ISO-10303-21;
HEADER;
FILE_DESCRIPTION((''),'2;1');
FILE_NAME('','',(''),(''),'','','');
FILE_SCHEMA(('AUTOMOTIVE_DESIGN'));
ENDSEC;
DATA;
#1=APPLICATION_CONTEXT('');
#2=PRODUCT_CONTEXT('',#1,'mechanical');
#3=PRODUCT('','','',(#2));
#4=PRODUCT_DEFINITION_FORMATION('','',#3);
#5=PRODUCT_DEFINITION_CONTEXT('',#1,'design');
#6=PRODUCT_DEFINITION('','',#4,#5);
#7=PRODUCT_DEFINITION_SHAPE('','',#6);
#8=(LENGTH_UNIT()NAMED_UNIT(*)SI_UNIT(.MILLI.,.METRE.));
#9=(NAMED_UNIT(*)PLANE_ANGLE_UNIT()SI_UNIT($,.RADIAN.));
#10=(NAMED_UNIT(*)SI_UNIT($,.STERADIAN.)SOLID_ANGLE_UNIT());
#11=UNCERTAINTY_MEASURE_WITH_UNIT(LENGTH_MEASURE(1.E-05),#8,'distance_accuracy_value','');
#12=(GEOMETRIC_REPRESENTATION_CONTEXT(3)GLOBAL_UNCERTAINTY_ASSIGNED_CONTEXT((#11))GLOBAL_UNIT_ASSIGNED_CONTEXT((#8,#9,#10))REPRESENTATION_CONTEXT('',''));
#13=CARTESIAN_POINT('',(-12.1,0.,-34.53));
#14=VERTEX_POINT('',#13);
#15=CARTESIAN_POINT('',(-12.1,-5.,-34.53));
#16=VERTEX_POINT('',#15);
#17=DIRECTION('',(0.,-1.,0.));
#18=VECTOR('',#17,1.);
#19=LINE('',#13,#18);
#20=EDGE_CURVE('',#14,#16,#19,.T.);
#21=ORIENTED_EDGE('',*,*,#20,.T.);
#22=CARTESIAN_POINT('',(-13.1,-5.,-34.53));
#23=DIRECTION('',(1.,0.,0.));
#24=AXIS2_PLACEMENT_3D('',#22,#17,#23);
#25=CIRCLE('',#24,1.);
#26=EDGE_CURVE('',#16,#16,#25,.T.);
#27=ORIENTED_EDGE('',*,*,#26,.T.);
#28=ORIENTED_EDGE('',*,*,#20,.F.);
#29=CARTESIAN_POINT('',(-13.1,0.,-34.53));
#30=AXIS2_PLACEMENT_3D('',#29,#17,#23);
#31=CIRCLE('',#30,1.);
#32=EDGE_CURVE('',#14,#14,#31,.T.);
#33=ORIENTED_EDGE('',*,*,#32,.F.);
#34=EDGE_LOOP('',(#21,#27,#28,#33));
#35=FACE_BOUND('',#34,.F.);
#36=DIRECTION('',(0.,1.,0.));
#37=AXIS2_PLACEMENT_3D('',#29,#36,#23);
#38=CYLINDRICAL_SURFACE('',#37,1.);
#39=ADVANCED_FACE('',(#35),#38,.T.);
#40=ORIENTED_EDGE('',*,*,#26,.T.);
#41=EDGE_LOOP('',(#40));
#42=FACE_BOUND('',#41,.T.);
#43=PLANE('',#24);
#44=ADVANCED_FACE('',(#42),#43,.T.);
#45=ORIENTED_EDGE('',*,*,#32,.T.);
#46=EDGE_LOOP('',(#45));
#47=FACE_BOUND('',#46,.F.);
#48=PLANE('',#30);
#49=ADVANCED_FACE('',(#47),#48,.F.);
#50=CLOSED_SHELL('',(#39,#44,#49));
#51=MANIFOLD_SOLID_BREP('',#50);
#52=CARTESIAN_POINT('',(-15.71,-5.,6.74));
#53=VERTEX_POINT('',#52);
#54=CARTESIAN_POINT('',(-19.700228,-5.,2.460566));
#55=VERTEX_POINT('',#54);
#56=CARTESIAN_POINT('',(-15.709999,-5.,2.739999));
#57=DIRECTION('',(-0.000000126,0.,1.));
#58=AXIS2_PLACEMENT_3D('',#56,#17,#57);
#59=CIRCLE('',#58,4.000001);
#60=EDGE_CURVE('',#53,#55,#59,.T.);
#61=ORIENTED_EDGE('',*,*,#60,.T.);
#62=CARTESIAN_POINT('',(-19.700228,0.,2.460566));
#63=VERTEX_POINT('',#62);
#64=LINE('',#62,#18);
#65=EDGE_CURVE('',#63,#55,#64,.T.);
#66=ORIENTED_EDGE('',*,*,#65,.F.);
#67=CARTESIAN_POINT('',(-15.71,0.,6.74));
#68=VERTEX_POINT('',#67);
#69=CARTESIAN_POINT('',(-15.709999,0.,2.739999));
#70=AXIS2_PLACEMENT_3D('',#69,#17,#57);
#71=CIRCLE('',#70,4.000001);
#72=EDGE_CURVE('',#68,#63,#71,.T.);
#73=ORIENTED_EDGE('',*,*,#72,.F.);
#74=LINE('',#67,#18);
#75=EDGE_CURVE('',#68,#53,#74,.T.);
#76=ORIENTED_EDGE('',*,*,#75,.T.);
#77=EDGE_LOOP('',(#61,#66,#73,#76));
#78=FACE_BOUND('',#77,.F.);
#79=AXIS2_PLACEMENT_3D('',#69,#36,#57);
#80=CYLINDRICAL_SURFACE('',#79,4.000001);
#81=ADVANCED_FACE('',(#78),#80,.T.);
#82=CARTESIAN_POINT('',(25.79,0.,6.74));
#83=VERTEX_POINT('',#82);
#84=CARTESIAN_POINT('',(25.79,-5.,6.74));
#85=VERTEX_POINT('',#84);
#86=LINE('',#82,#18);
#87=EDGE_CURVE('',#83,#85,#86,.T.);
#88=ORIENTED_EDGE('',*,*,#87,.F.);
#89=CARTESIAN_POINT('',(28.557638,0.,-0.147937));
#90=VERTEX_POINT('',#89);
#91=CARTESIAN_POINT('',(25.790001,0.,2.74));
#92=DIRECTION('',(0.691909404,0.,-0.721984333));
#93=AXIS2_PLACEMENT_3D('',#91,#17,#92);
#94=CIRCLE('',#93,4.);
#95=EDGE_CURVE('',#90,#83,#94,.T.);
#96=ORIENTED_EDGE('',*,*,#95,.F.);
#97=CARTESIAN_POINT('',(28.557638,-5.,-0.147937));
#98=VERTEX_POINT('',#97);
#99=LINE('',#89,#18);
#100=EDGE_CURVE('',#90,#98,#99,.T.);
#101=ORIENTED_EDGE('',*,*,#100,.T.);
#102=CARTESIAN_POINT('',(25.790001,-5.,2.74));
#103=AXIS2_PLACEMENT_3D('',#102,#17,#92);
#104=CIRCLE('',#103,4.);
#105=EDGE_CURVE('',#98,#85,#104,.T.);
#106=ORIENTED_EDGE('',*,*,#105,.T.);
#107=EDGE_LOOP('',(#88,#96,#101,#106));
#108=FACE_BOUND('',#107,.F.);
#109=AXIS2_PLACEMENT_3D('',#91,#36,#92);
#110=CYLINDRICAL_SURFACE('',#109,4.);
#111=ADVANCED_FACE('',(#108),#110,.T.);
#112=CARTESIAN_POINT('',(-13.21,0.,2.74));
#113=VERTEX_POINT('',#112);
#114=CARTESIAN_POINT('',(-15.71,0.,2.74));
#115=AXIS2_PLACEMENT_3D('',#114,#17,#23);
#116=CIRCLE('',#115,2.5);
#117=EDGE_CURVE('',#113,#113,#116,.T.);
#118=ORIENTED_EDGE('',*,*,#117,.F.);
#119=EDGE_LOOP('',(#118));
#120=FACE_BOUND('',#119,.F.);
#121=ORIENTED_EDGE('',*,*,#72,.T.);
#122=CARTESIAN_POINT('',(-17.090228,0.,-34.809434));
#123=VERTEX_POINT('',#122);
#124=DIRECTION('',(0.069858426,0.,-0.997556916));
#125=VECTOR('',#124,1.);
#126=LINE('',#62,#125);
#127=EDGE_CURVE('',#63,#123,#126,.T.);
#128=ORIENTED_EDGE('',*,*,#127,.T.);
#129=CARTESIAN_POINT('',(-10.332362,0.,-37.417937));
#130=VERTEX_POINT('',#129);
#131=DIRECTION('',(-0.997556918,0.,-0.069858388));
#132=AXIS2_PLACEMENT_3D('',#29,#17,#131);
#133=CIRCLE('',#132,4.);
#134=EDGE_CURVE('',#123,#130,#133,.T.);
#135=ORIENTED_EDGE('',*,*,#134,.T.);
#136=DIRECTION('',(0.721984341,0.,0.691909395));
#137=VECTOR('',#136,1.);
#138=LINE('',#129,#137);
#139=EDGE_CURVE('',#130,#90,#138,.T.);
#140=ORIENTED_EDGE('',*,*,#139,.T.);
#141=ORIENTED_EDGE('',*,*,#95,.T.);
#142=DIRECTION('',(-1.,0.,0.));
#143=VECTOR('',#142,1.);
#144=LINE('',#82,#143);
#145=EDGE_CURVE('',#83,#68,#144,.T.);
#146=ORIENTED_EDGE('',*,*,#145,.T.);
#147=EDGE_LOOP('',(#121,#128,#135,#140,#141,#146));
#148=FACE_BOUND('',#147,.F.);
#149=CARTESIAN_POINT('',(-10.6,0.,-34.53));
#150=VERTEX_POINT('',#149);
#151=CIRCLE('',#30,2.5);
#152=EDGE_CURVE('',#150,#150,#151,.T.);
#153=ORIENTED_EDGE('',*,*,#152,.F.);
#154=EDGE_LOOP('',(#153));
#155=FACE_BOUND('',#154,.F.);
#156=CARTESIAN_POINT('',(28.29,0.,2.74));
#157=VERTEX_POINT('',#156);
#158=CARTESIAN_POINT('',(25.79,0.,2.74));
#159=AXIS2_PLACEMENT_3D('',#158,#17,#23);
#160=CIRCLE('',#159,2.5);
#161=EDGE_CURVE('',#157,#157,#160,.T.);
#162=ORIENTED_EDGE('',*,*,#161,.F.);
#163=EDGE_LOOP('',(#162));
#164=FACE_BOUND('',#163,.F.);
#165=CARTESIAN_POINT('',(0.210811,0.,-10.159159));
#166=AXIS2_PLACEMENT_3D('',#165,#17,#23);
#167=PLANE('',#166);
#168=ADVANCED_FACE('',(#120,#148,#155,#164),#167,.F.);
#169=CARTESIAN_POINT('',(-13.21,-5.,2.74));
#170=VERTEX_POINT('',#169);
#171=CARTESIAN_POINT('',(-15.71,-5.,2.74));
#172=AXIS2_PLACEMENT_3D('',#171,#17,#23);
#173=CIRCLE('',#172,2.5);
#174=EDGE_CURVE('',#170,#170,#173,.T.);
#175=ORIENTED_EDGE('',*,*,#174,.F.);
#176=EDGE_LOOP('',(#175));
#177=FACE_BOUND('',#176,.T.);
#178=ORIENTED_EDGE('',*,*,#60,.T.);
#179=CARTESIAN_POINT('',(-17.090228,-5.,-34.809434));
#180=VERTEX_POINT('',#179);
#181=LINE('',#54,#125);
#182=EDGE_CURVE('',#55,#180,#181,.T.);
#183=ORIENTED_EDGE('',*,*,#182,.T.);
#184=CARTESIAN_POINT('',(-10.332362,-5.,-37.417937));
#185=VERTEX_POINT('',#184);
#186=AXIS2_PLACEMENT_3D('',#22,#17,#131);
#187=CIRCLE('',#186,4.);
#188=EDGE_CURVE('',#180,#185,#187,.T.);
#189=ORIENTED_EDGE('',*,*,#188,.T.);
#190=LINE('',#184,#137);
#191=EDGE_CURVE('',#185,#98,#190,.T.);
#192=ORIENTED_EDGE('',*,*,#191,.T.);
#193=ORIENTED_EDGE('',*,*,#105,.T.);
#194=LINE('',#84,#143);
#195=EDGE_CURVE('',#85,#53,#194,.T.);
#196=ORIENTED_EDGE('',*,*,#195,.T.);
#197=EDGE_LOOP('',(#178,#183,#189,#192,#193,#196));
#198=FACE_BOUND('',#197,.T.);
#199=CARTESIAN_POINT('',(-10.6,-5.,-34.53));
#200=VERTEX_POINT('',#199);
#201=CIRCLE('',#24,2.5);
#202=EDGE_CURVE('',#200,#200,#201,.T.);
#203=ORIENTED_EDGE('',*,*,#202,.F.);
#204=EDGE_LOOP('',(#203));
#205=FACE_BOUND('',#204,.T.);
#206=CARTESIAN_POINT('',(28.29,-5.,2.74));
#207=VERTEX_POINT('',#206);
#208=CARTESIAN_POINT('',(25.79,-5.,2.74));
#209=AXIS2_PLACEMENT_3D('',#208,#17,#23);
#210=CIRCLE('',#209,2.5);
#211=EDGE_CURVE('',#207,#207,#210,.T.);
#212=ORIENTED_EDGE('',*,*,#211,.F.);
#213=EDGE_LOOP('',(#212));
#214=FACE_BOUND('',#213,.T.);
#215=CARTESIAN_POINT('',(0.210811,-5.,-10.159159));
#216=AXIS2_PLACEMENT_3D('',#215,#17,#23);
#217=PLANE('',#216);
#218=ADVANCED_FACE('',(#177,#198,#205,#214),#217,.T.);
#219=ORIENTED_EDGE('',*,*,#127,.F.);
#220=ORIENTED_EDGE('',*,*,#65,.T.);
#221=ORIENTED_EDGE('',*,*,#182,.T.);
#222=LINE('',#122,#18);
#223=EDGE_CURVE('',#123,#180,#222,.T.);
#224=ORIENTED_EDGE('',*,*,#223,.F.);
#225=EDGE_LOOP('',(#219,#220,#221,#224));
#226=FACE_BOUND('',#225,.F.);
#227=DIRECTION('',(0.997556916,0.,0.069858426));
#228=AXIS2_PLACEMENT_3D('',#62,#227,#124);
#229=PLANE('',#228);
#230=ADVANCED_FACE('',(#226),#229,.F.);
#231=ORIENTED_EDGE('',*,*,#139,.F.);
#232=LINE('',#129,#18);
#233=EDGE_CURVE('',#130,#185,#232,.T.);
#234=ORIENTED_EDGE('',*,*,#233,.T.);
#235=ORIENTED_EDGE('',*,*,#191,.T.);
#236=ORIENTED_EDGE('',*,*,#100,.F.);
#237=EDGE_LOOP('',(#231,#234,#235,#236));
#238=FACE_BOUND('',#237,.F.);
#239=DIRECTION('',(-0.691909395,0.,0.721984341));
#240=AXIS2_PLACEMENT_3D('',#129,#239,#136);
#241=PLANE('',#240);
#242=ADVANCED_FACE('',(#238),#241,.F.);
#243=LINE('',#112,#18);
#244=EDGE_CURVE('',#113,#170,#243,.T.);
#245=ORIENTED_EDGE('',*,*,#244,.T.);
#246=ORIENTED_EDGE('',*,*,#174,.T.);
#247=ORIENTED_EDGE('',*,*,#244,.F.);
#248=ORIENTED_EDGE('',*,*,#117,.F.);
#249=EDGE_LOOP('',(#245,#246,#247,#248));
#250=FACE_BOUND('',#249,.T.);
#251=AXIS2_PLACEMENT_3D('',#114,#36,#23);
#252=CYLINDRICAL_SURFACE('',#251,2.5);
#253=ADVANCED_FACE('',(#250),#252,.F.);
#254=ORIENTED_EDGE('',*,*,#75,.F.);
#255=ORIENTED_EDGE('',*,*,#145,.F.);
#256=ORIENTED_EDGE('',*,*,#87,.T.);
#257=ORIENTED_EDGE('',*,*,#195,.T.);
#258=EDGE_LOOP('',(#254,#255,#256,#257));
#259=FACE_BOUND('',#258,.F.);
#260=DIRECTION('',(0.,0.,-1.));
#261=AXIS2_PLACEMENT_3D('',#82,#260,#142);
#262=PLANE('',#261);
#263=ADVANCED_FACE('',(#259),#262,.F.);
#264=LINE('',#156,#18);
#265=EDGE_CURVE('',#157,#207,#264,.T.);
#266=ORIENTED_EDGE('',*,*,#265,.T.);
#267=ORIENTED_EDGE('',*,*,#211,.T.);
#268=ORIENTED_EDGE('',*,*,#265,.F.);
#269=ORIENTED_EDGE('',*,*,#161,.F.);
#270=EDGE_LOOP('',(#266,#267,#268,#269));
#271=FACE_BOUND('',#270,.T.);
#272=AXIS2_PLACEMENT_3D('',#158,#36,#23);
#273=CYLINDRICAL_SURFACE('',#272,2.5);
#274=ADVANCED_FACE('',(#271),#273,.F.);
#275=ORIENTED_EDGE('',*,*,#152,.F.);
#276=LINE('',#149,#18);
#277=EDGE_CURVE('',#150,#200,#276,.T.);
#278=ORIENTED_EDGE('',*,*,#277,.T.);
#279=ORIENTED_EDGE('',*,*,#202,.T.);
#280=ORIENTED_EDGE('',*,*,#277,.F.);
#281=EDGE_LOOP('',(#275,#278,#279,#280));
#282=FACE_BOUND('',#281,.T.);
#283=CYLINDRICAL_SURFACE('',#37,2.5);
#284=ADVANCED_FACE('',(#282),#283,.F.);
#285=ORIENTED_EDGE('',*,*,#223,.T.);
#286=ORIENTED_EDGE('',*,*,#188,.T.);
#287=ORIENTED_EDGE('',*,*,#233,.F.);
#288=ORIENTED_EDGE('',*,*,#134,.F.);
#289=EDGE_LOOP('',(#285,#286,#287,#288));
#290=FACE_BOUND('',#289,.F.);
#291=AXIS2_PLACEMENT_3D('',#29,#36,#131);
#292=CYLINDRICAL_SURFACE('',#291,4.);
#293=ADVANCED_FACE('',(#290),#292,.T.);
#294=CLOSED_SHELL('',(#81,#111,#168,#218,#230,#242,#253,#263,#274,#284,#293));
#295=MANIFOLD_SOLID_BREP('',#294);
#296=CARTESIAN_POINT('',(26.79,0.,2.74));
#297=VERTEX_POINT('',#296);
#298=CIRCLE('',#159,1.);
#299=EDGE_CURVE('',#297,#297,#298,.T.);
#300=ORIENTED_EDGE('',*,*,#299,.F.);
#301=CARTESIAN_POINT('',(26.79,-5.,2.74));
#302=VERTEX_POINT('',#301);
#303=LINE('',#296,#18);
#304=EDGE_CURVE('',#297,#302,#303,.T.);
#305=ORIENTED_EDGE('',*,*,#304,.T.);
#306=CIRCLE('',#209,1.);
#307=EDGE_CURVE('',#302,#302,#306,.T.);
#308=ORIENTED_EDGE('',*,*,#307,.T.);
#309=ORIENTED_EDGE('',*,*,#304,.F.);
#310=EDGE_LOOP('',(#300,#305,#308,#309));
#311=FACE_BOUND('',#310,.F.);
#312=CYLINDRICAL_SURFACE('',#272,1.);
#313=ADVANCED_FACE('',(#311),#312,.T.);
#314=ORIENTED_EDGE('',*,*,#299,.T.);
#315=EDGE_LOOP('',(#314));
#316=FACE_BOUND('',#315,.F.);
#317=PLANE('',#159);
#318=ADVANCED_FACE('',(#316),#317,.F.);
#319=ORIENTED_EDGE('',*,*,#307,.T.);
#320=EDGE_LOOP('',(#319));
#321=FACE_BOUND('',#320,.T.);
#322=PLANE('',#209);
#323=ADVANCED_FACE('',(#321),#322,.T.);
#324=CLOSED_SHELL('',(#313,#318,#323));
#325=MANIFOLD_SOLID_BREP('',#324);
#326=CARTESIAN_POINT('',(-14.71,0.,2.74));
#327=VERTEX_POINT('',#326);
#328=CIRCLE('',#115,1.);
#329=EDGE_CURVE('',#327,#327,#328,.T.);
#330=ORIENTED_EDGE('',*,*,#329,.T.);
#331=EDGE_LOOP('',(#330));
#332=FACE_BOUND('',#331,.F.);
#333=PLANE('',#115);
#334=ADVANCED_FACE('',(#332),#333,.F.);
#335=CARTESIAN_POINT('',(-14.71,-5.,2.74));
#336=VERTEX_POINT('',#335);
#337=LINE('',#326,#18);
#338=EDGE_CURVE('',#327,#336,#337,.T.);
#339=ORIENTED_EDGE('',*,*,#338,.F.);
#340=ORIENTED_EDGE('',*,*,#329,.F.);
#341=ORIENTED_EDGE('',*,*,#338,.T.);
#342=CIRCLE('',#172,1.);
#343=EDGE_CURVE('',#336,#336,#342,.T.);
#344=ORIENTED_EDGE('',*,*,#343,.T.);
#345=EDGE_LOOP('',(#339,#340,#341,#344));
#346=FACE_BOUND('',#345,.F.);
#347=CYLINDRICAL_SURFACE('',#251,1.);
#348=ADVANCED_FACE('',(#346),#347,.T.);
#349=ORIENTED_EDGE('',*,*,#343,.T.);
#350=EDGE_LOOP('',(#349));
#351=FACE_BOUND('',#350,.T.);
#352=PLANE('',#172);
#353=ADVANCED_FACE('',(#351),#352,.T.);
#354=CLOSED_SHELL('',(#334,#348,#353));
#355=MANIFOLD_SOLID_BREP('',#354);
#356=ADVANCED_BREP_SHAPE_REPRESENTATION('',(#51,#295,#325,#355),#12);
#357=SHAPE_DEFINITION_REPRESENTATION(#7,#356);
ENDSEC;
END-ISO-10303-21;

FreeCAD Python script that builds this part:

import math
import FreeCAD as App
import Part
import Sketcher
Q = App.Units.Quantity

doc = App.newDocument("Part")
body = doc.addObject("PartDesign::Body", "Body")
body.AllowCompound = True

sketch1 = body.newObject("Sketcher::SketchObject", "Sketch")
sketch1.AttachmentSupport = (doc.getObject("XZ_Plane"), [""])
sketch1.MapMode = "FlatFace"
sketch1.addGeometry([
    Part.LineSegment(App.Vector(-19.7, 2.5, 0), App.Vector(-17.1, -34.8, 0)),
    Part.ArcOfCircle(Part.Circle(App.Vector(-13.1, -34.5, 0), App.Vector(0, 0, 1), 4), math.radians(-176), math.radians(-46)),
    Part.LineSegment(App.Vector(-10.3, -37.4, 0), App.Vector(28.6, -0.1, 0)),
    Part.ArcOfCircle(Part.Circle(App.Vector(25.8, 2.7, 0), App.Vector(0, 0, 1), 4), math.radians(-46), math.radians(90)),
    Part.LineSegment(App.Vector(25.8, 6.7, 0), App.Vector(-15.7, 6.7, 0)),
    Part.ArcOfCircle(Part.Circle(App.Vector(-15.7, 2.7, 0), App.Vector(0, 0, 1), 4), math.radians(90), math.radians(184)),
    Part.Circle(App.Vector(-13.1, -34.5, 0), App.Vector(0, 0, 1), 2.5),
    Part.Circle(App.Vector(-15.7, 2.7, 0), App.Vector(0, 0, 1), 2.5),
    Part.Circle(App.Vector(25.8, 2.7, 0), App.Vector(0, 0, 1), 2.5),
    Part.Circle(App.Vector(-15.7, 2.7, 0), App.Vector(0, 0, 1), 1),
    Part.Circle(App.Vector(25.8, 2.7, 0), App.Vector(0, 0, 1), 1),
    Part.Circle(App.Vector(-13.1, -34.5, 0), App.Vector(0, 0, 1), 1),
], False)
sketch1.addConstraint([
    Sketcher.Constraint("Tangent", 0, 2, 1, 1),
    Sketcher.Constraint("Tangent", 1, 2, 2, 1),
    Sketcher.Constraint("Tangent", 2, 2, 3, 1),
    Sketcher.Constraint("Tangent", 3, 2, 4, 1),
    Sketcher.Constraint("Tangent", 4, 2, 5, 1),
    Sketcher.Constraint("Tangent", 5, 2, 0, 1),
    Sketcher.Constraint("Horizontal", 4),
    Sketcher.Constraint("Coincident", 6, 3, 1, 3),
    Sketcher.Constraint("Coincident", 7, 3, 5, 3),
    Sketcher.Constraint("Coincident", 8, 3, 3, 3),
    Sketcher.Constraint("Coincident", 9, 3, 5, 3),
    Sketcher.Constraint("Coincident", 10, 3, 3, 3),
    Sketcher.Constraint("Coincident", 11, 3, 1, 3),
    Sketcher.Constraint("Equal", 1, 3),
    Sketcher.Constraint("Equal", 3, 5),
    Sketcher.Constraint("Equal", 6, 7),
    Sketcher.Constraint("Equal", 7, 8),
    Sketcher.Constraint("Equal", 9, 10),
    Sketcher.Constraint("Equal", 10, 11),
    Sketcher.Constraint("Diameter", 6, Q("5 mm")),
    Sketcher.Constraint("Diameter", 9, Q("2 mm")),
    Sketcher.Constraint("Radius", 1, Q("4 mm")),
    Sketcher.Constraint("DistanceX", 4, 2, 4, 1, Q("41.5 mm")),
    Sketcher.Constraint("DistanceX", 1, 3, -1, 1, Q("13.1 mm")),
    Sketcher.Constraint("DistanceY", 1, 3, -1, 1, Q("34.53 mm")),
    Sketcher.Constraint("DistanceX", -1, 1, 3, 3, Q("25.790001 mm")),
    Sketcher.Constraint("DistanceY", -1, 1, 3, 3, Q("2.74 mm")),
])
pad1 = body.newObject("PartDesign::Pad", "Pad")
pad1.Profile = sketch1
pad1.Length = 5

doc.recompute()
